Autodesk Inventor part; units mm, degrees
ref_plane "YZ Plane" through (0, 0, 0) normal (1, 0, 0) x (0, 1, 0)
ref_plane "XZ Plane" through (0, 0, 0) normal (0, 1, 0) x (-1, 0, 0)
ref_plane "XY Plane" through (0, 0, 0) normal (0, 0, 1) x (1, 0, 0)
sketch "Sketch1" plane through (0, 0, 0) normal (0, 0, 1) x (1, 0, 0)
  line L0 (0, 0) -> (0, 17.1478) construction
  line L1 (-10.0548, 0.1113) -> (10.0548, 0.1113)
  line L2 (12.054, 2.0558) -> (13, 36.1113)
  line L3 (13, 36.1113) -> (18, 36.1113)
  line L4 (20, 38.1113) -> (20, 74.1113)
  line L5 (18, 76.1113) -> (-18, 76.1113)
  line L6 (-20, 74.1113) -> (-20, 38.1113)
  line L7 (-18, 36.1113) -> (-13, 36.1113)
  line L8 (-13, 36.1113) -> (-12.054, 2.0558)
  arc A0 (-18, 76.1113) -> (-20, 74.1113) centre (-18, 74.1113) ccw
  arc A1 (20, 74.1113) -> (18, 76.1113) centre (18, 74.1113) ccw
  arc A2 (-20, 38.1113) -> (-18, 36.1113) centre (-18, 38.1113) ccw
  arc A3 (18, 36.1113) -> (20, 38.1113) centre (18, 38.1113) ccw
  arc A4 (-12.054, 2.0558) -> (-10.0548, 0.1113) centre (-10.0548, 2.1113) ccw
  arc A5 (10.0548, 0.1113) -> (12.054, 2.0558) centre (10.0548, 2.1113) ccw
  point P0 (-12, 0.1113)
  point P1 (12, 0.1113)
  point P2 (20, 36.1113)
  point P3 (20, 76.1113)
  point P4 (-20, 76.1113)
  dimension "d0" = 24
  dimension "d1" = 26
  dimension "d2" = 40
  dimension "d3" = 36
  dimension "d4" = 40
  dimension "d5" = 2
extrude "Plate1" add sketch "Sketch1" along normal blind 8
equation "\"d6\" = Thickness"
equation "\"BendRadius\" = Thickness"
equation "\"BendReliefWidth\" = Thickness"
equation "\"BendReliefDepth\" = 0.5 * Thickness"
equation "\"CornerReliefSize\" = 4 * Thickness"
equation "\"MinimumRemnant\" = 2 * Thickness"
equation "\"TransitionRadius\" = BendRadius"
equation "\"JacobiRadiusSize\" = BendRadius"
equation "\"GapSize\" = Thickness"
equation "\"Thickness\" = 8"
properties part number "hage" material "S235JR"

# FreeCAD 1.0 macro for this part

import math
import FreeCAD as App
import Part
import Sketcher
Q = App.Units.Quantity

doc = App.newDocument("Part")
params = doc.addObject("Spreadsheet::Sheet", "Params")
for row, (alias, value) in enumerate([
    ("sketch1_radius", "2 mm"),
    ("sketch1_width", "36 mm"),
    ("pad1_length", "8 mm"),
], start=1):
    params.set(f"A{row}", alias)
    params.set(f"B{row}", "=" + value)
    params.setAlias(f"B{row}", alias)

body = doc.addObject("PartDesign::Body", "Body")

sketch1 = doc.addObject("Sketcher::SketchObject", "Sketch")
body.addObject(sketch1)
sketch1.AttachmentSupport = (doc.XY_Plane, [""])
sketch1.MapMode = "FlatFace"
sketch1.addGeometry(Part.ArcOfCircle(Part.Circle(App.Vector(-10.1, 2.1, 0), App.Vector(0, 0, 1), 2), math.radians(-178), math.radians(-90)), False)
sketch1.addGeometry(Part.LineSegment(App.Vector(-10.1, 0.1, 0), App.Vector(10.1, 0.1, 0)), False)
sketch1.addGeometry(Part.ArcOfCircle(Part.Circle(App.Vector(10.1, 2.1, 0), App.Vector(0, 0, 1), 2), math.radians(-90), math.radians(-2)), False)
sketch1.addGeometry(Part.LineSegment(App.Vector(12.1, 2.1, 0), App.Vector(13, 36.1, 0)), False)
sketch1.addGeometry(Part.LineSegment(App.Vector(13, 36.1, 0), App.Vector(18, 36.1, 0)), False)
sketch1.addGeometry(Part.ArcOfCircle(Part.Circle(App.Vector(18, 38.1, 0), App.Vector(0, 0, 1), 2), math.radians(-90), math.radians(0)), False)
sketch1.addGeometry(Part.LineSegment(App.Vector(20, 38.1, 0), App.Vector(20, 74.1, 0)), False)
sketch1.addGeometry(Part.ArcOfCircle(Part.Circle(App.Vector(18, 74.1, 0), App.Vector(0, 0, 1), 2), math.radians(0), math.radians(90)), False)
sketch1.addGeometry(Part.LineSegment(App.Vector(18, 76.1, 0), App.Vector(-18, 76.1, 0)), False)
sketch1.addGeometry(Part.ArcOfCircle(Part.Circle(App.Vector(-18, 74.1, 0), App.Vector(0, 0, 1), 2), math.radians(90), math.radians(180)), False)
sketch1.addGeometry(Part.LineSegment(App.Vector(-20, 74.1, 0), App.Vector(-20, 38.1, 0)), False)
sketch1.addGeometry(Part.ArcOfCircle(Part.Circle(App.Vector(-18, 38.1, 0), App.Vector(0, 0, 1), 2), math.radians(180), math.radians(270)), False)
sketch1.addGeometry(Part.LineSegment(App.Vector(-18, 36.1, 0), App.Vector(-13, 36.1, 0)), False)
sketch1.addGeometry(Part.LineSegment(App.Vector(-13, 36.1, 0), App.Vector(-12.1, 2.1, 0)), False)
sketch1.addConstraint(Sketcher.Constraint("Tangent", 0, 2, 1, 1))
sketch1.addConstraint(Sketcher.Constraint("Tangent", 1, 2, 2, 1))
sketch1.addConstraint(Sketcher.Constraint("Tangent", 2, 2, 3, 1))
sketch1.addConstraint(Sketcher.Constraint("Coincident", 3, 2, 4, 1))
sketch1.addConstraint(Sketcher.Constraint("Tangent", 4, 2, 5, 1))
sketch1.addConstraint(Sketcher.Constraint("Tangent", 5, 2, 6, 1))
sketch1.addConstraint(Sketcher.Constraint("Tangent", 6, 2, 7, 1))
sketch1.addConstraint(Sketcher.Constraint("Tangent", 7, 2, 8, 1))
sketch1.addConstraint(Sketcher.Constraint("Tangent", 8, 2, 9, 1))
sketch1.addConstraint(Sketcher.Constraint("Tangent", 9, 2, 10, 1))
sketch1.addConstraint(Sketcher.Constraint("Tangent", 10, 2, 11, 1))
sketch1.addConstraint(Sketcher.Constraint("Tangent", 11, 2, 12, 1))
sketch1.addConstraint(Sketcher.Constraint("Coincident", 12, 2, 13, 1))
sketch1.addConstraint(Sketcher.Constraint("Tangent", 13, 2, 0, 1))
sketch1.addConstraint(Sketcher.Constraint("Horizontal", 1))
sketch1.addConstraint(Sketcher.Constraint("Horizontal", 4))
sketch1.addConstraint(Sketcher.Constraint("Vertical", 6))
sketch1.addConstraint(Sketcher.Constraint("Horizontal", 8))
sketch1.addConstraint(Sketcher.Constraint("Vertical", 10))
sketch1.addConstraint(Sketcher.Constraint("Horizontal", 12))
sketch1.addConstraint(Sketcher.Constraint("Equal", 0, 2))
sketch1.addConstraint(Sketcher.Constraint("Equal", 2, 5))
sketch1.addConstraint(Sketcher.Constraint("Equal", 5, 7))
sketch1.addConstraint(Sketcher.Constraint("Equal", 7, 9))
sketch1.addConstraint(Sketcher.Constraint("Equal", 9, 11))
sketch1.addConstraint(Sketcher.Constraint("Symmetric", 5, 3, 11, 3, -2))
sketch1.addConstraint(Sketcher.Constraint("Symmetric", 2, 2, 13, 2, -2))
sketch1.addConstraint(Sketcher.Constraint("Equal", 8, 6))
sketch1.addConstraint(Sketcher.Constraint("Radius", 0, 2.0))
sketch1.addConstraint(Sketcher.Constraint("DistanceX", 8, 2, 8, 1, 36.0))
sketch1.addConstraint(Sketcher.Constraint("DistanceY", 2, 3, 5, 3, 36.0))
sketch1.addConstraint(Sketcher.Constraint("DistanceX", 12, 2, 3, 2, 26.0))
sketch1.addConstraint(Sketcher.Constraint("Angle", 3, Q("88.4088 deg")))
sketch1.addConstraint(Sketcher.Constraint("DistanceY", -1, 1, 0, 3, 2.1113))
sketch1.setExpression("Constraints[28]", "Params.sketch1_radius")
sketch1.setExpression("Constraints[29]", "Params.sketch1_width")
pad1 = doc.addObject("PartDesign::Pad", "Pad")
body.addObject(pad1)
pad1.Profile = sketch1
pad1.setExpression("Length", "Params.pad1_length")

doc.recompute()
